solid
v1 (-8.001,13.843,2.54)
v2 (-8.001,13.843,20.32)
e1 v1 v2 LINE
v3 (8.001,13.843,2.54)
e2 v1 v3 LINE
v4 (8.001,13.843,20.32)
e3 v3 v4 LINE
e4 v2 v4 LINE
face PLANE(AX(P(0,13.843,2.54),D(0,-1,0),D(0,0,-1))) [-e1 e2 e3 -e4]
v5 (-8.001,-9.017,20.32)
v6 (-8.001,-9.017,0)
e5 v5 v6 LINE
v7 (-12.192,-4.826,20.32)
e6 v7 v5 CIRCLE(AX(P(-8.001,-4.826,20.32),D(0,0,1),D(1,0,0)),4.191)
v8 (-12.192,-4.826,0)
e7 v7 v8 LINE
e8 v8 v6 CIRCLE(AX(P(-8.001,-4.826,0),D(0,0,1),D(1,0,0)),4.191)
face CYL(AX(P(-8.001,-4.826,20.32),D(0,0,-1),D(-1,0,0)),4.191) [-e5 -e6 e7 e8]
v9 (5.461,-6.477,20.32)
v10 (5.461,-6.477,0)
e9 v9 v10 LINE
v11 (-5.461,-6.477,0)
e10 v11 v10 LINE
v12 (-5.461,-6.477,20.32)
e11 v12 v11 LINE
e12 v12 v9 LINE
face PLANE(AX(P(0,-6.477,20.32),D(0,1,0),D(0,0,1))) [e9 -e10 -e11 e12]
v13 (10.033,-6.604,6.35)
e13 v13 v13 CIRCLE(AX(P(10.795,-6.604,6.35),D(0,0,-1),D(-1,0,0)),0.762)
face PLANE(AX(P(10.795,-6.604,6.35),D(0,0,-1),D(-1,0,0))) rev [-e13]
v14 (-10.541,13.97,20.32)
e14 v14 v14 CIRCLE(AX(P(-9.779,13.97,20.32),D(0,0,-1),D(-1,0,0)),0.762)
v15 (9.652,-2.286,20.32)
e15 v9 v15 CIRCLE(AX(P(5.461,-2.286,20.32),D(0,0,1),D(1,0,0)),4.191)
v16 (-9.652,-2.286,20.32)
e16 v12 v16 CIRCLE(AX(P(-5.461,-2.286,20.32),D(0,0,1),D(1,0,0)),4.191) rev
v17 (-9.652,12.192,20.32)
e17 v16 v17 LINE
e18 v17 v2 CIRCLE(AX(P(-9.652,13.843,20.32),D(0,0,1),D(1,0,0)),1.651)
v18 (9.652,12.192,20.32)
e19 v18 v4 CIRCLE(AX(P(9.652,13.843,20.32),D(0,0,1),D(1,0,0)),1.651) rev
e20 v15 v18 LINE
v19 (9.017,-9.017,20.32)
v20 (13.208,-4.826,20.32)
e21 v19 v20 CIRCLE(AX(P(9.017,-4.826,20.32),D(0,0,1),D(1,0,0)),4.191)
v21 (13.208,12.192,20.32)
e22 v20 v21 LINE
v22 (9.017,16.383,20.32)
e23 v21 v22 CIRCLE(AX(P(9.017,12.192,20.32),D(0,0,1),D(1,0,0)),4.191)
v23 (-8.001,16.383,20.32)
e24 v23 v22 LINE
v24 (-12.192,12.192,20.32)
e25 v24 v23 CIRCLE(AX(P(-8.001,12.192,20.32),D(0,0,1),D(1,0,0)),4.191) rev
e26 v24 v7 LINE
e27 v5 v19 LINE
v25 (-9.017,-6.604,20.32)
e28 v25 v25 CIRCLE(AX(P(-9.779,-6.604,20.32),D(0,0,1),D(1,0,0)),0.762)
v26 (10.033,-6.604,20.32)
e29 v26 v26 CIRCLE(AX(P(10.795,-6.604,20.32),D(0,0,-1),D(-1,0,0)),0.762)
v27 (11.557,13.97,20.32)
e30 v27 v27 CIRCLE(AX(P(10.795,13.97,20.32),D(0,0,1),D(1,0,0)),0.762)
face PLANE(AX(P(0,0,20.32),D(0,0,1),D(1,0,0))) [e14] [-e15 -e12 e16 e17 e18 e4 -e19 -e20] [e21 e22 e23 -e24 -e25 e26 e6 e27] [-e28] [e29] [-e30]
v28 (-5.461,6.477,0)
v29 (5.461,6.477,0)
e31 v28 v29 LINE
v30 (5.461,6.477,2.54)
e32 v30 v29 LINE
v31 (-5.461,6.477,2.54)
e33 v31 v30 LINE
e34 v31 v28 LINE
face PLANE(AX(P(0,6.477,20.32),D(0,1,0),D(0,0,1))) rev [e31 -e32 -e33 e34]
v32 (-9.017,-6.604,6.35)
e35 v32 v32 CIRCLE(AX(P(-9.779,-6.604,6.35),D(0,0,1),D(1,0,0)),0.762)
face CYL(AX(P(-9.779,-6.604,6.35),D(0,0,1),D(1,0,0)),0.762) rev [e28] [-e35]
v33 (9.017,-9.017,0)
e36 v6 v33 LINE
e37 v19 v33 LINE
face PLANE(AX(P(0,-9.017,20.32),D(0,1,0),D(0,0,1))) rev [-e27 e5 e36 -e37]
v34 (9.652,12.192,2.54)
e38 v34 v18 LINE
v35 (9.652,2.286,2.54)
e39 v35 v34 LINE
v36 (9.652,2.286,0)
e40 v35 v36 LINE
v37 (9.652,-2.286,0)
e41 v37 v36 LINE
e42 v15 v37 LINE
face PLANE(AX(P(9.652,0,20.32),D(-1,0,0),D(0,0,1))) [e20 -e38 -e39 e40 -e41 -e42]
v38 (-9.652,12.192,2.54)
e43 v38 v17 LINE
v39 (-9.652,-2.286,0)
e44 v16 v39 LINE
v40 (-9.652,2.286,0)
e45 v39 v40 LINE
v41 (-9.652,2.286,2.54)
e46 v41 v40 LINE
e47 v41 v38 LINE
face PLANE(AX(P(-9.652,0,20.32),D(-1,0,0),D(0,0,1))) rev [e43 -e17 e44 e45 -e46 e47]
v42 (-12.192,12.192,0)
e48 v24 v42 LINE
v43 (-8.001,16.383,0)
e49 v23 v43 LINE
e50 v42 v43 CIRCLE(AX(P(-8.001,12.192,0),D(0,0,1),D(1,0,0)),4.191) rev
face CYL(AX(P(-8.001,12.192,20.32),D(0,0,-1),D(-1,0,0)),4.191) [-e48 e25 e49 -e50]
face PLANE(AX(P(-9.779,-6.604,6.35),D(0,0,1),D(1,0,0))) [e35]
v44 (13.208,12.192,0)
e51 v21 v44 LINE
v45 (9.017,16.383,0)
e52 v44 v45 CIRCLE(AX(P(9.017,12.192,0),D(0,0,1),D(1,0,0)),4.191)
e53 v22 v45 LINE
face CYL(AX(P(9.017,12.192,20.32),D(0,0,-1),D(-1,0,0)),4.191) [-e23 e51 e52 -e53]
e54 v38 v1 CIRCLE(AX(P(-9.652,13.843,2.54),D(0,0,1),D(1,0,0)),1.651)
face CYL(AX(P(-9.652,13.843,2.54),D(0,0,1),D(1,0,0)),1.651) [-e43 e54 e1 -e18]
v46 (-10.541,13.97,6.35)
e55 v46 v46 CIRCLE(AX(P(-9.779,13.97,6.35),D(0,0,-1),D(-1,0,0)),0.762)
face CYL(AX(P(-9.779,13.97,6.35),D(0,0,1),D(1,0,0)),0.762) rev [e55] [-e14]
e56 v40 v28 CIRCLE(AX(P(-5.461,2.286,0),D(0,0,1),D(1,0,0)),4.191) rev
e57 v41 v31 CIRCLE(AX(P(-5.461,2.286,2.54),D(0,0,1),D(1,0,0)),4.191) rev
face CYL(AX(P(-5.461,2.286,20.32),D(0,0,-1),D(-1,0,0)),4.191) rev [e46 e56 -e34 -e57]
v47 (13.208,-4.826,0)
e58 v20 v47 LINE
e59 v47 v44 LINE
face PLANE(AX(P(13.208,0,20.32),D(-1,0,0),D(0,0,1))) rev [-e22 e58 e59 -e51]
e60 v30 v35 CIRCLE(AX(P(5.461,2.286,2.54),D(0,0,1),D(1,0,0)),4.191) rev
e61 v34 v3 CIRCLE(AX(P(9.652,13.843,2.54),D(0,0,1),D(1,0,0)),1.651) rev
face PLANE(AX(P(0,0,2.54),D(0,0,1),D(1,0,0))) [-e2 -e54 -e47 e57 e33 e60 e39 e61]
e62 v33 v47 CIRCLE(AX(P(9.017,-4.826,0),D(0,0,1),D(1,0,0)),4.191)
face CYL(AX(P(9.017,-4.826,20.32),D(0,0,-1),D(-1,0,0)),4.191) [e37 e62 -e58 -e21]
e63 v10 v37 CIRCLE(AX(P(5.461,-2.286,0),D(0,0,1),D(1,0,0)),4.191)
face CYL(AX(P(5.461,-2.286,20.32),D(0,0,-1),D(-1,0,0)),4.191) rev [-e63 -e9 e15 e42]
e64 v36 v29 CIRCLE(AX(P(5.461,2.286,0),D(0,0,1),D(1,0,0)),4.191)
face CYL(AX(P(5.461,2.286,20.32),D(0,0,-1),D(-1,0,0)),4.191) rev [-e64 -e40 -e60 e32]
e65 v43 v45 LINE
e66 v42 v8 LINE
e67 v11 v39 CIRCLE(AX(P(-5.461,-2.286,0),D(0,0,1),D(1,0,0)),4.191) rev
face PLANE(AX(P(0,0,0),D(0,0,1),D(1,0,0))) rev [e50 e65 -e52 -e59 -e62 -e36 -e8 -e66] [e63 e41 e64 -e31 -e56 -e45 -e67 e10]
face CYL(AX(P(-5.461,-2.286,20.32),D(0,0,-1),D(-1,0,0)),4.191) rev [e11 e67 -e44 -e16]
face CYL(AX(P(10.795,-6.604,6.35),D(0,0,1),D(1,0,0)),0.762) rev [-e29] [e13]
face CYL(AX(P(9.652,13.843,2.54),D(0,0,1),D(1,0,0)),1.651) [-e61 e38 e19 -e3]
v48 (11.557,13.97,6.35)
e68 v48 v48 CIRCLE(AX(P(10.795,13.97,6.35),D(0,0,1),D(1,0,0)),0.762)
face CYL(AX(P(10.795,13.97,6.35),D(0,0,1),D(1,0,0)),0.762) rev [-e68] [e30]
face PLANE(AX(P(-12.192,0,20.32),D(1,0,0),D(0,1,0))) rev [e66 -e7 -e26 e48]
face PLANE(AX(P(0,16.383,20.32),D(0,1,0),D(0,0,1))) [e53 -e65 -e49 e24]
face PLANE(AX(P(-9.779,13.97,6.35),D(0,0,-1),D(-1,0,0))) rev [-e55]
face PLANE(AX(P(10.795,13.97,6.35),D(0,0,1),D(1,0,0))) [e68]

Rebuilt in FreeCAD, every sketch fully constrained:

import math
import FreeCAD as App
import Part
import Sketcher
from FreeCAD import Vector
Q = App.Units.Quantity

doc = App.newDocument("Part")
body = doc.addObject("PartDesign::Body", "Body")

# Sketch on XY plane
sketch1 = doc.addObject("Sketcher::SketchObject", "Sketch")
body.addObject(sketch1)
sketch1.AttachmentSupport = (doc.XY_Plane, [""])
sketch1.MapMode = "FlatFace"
sketch1.addGeometry([
    Part.LineSegment(Vector(9.017, 16.383, 0), Vector(-8.001, 16.383, 0)),  # 0
    Part.ArcOfCircle(Part.Circle(Vector(-8.001, 12.192, 0), Vector(0, 0, 1), 4.191), math.radians(90), math.radians(180)),  # 1
    Part.LineSegment(Vector(-12.192, 12.192, 0), Vector(-12.192, -4.826, 0)),  # 2
    Part.ArcOfCircle(Part.Circle(Vector(-8.001, -4.826, 0), Vector(0, 0, 1), 4.191), math.radians(180), math.radians(270)),  # 3
    Part.LineSegment(Vector(-8.001, -9.017, 0), Vector(9.017, -9.017, 0)),  # 4
    Part.ArcOfCircle(Part.Circle(Vector(9.017, -4.826, 0), Vector(0, 0, 1), 4.191), math.radians(-90), math.radians(0)),  # 5
    Part.LineSegment(Vector(13.208, -4.826, 0), Vector(13.208, 12.192, 0)),  # 6
    Part.ArcOfCircle(Part.Circle(Vector(9.017, 12.192, 0), Vector(0, 0, 1), 4.191), math.radians(0), math.radians(90)),  # 7
    Part.ArcOfCircle(Part.Circle(Vector(-5.461, -2.286, 0), Vector(0, 0, 1), 4.191), math.radians(180), math.radians(270)),  # 8
    Part.LineSegment(Vector(-9.652, -2.286, 0), Vector(-9.652, 2.286, 0)),  # 9
    Part.ArcOfCircle(Part.Circle(Vector(-5.461, 2.286, 0), Vector(0, 0, 1), 4.191), math.radians(90), math.radians(180)),  # 10
    Part.LineSegment(Vector(-5.461, 6.477, 0), Vector(5.461, 6.477, 0)),  # 11
    Part.ArcOfCircle(Part.Circle(Vector(5.461, 2.286, 0), Vector(0, 0, 1), 4.191), math.radians(0), math.radians(90)),  # 12
    Part.LineSegment(Vector(9.652, 2.286, 0), Vector(9.652, -2.286, 0)),  # 13
    Part.ArcOfCircle(Part.Circle(Vector(5.461, -2.286, 0), Vector(0, 0, 1), 4.191), math.radians(-90), math.radians(0)),  # 14
    Part.LineSegment(Vector(5.461, -6.477, 0), Vector(-5.461, -6.477, 0)),  # 15
], False)
sketch1.addConstraint([
    Sketcher.Constraint("Tangent", 0, 2, 1, 1),
    Sketcher.Constraint("Tangent", 1, 2, 2, 1),
    Sketcher.Constraint("Tangent", 2, 2, 3, 1),
    Sketcher.Constraint("Tangent", 3, 2, 4, 1),
    Sketcher.Constraint("Tangent", 4, 2, 5, 1),
    Sketcher.Constraint("Tangent", 5, 2, 6, 1),
    Sketcher.Constraint("Tangent", 6, 2, 7, 1),
    Sketcher.Constraint("Tangent", 7, 2, 0, 1),
    Sketcher.Constraint("Tangent", 8, 1, 9, 1),
    Sketcher.Constraint("Tangent", 9, 2, 10, 2),
    Sketcher.Constraint("Tangent", 10, 1, 11, 1),
    Sketcher.Constraint("Tangent", 11, 2, 12, 2),
    Sketcher.Constraint("Tangent", 12, 1, 13, 1),
    Sketcher.Constraint("Tangent", 13, 2, 14, 2),
    Sketcher.Constraint("Tangent", 14, 1, 15, 1),
    Sketcher.Constraint("Tangent", 15, 2, 8, 2),
    Sketcher.Constraint("Horizontal", 0),
    Sketcher.Constraint("Vertical", 2),
    Sketcher.Constraint("Horizontal", 4),
    Sketcher.Constraint("Vertical", 6),
    Sketcher.Constraint("Vertical", 9),
    Sketcher.Constraint("Horizontal", 11),
    Sketcher.Constraint("Vertical", 13),
    Sketcher.Constraint("Horizontal", 15),
    Sketcher.Constraint("Equal", 1, 3),
    Sketcher.Constraint("Equal", 3, 5),
    Sketcher.Constraint("Equal", 5, 7),
    Sketcher.Constraint("Equal", 7, 8),
    Sketcher.Constraint("Equal", 8, 10),
    Sketcher.Constraint("Equal", 10, 12),
    Sketcher.Constraint("Equal", 12, 14),
    Sketcher.Constraint("Symmetric", 8, 3, 12, 3, -1, 1),
    Sketcher.Constraint("Equal", 4, 2),
    Sketcher.Constraint("Radius", 1, Q("0.165 in")),
    Sketcher.Constraint("DistanceX", 0, 2, 0, 1, Q("0.67 in")),
    Sketcher.Constraint("DistanceX", 11, 1, 11, 2, Q("0.43 in")),
    Sketcher.Constraint("DistanceY", 9, 1, 9, 2, Q("0.18 in")),
    Sketcher.Constraint("DistanceX", 3, 3, 8, 3, Q("0.1 in")),
    Sketcher.Constraint("DistanceY", 3, 3, 8, 3, Q("0.1 in")),
])
pad1 = doc.addObject("PartDesign::Pad", "Pad")
body.addObject(pad1)
pad1.Profile = sketch1
pad1.Length = Q("0.8 in")

# Sketch on XY plane
sketch2 = doc.addObject("Sketcher::SketchObject", "Sketch001")
body.addObject(sketch2)
sketch2.AttachmentSupport = (doc.XY_Plane, [""])
sketch2.MapMode = "FlatFace"
sketch2.AttachmentOffset = App.Placement(Vector(0, 0, 0.1 * 25.4), App.Rotation())
sketch2.addGeometry([
    Part.LineSegment(Vector(-9.652, 12.192, 0), Vector(-9.652, 2.286, 0)),  # 0
    Part.ArcOfCircle(Part.Circle(Vector(-5.461, 2.286, 0), Vector(0, 0, 1), 4.191), math.radians(90), math.radians(180)),  # 1
    Part.LineSegment(Vector(-5.461, 6.477, 0), Vector(5.461, 6.477, 0)),  # 2
    Part.ArcOfCircle(Part.Circle(Vector(5.461, 2.286, 0), Vector(0, 0, 1), 4.191), math.radians(0), math.radians(90)),  # 3
    Part.LineSegment(Vector(9.652, 2.286, 0), Vector(9.652, 12.192, 0)),  # 4
    Part.ArcOfCircle(Part.Circle(Vector(9.652, 13.843, 0), Vector(0, 0, 1), 1.651), math.radians(180), math.radians(270)),  # 5
    Part.LineSegment(Vector(8.001, 13.843, 0), Vector(-8.001, 13.843, 0)),  # 6
    Part.ArcOfCircle(Part.Circle(Vector(-9.652, 13.843, 0), Vector(0, 0, 1), 1.651), math.radians(-90), math.radians(0)),  # 7
], False)
sketch2.addConstraint([
    Sketcher.Constraint("Tangent", 0, 2, 1, 2),
    Sketcher.Constraint("Tangent", 1, 1, 2, 1),
    Sketcher.Constraint("Tangent", 2, 2, 3, 2),
    Sketcher.Constraint("Tangent", 3, 1, 4, 1),
    Sketcher.Constraint("Coincident", 4, 2, 5, 2),
    Sketcher.Constraint("Coincident", 5, 1, 6, 1),
    Sketcher.Constraint("Coincident", 6, 2, 7, 2),
    Sketcher.Constraint("Coincident", 7, 1, 0, 1),
    Sketcher.Constraint("Vertical", 0),
    Sketcher.Constraint("Horizontal", 2),
    Sketcher.Constraint("Vertical", 4),
    Sketcher.Constraint("Horizontal", 6),
    Sketcher.Constraint("Equal", 1, 3),
    Sketcher.Constraint("Equal", 5, 7),
    Sketcher.Constraint("Symmetric", 5, 3, 7, 3, -2),
    Sketcher.Constraint("Horizontal", 7, 3, 5, 1),
    Sketcher.Constraint("Vertical", 7, 3, 0, 2),
    Sketcher.Constraint("Vertical", 5, 3, 3, 1),
    Sketcher.Constraint("Radius", 1, Q("0.165 in")),
    Sketcher.Constraint("Radius", 5, Q("0.065 in")),
    Sketcher.Constraint("DistanceX", 2, 1, 2, 2, Q("0.43 in")),
    Sketcher.Constraint("DistanceY", 0, 2, 0, 1, Q("0.39 in")),
    Sketcher.Constraint("DistanceY", -1, 1, 1, 3, Q("0.09 in")),
])
pocket1 = doc.addObject("PartDesign::Pocket", "Pocket")
body.addObject(pocket1)
pocket1.Profile = sketch2
pocket1.Length = Q("0.7 in")
pocket1.Reversed = True

# Sketch on XY plane
sketch3 = doc.addObject("Sketcher::SketchObject", "Sketch002")
body.addObject(sketch3)
sketch3.AttachmentSupport = (doc.XY_Plane, [""])
sketch3.MapMode = "FlatFace"
sketch3.AttachmentOffset = App.Placement(Vector(0, 0, 0.8 * 25.4), App.Rotation())
sketch3.addGeometry(Part.Circle(Vector(-9.779, 13.97, 0), Vector(0, 0, 1), 0.762), False)
sketch3.addConstraint([
    Sketcher.Constraint("Diameter", 0, Q("0.06 in")),
    Sketcher.Constraint("DistanceY", -1, 1, 0, 3, Q("0.55 in")),
    Sketcher.Constraint("DistanceX", 0, 3, -1, 1, Q("0.385 in")),
])
pocket2 = doc.addObject("PartDesign::Pocket", "Pocket001")
body.addObject(pocket2)
pocket2.Profile = sketch3
pocket2.Length = Q("0.55 in")

# Sketch on XY plane
sketch4 = doc.addObject("Sketcher::SketchObject", "Sketch003")
body.addObject(sketch4)
sketch4.AttachmentSupport = (doc.XY_Plane, [""])
sketch4.MapMode = "FlatFace"
sketch4.AttachmentOffset = App.Placement(Vector(0, 0, 0.8 * 25.4), App.Rotation())
sketch4.addGeometry(Part.Circle(Vector(10.795, 13.97, 0), Vector(0, 0, 1), 0.762), False)
sketch4.addConstraint([
    Sketcher.Constraint("Diameter", 0, Q("0.06 in")),
    Sketcher.Constraint("DistanceY", -1, 1, 0, 3, Q("0.55 in")),
    Sketcher.Constraint("DistanceX", -1, 1, 0, 3, Q("0.425 in")),
])
pocket3 = doc.addObject("PartDesign::Pocket", "Pocket002")
body.addObject(pocket3)
pocket3.Profile = sketch4
pocket3.Length = Q("0.55 in")

# Sketch on XY plane
sketch5 = doc.addObject("Sketcher::SketchObject", "Sketch004")
body.addObject(sketch5)
sketch5.AttachmentSupport = (doc.XY_Plane, [""])
sketch5.MapMode = "FlatFace"
sketch5.AttachmentOffset = App.Placement(Vector(0, 0, 0.8 * 25.4), App.Rotation())
sketch5.addGeometry(Part.Circle(Vector(10.795, -6.604, 0), Vector(0, 0, 1), 0.762), False)
sketch5.addConstraint([
    Sketcher.Constraint("Diameter", 0, Q("0.06 in")),
    Sketcher.Constraint("DistanceY", 0, 3, -1, 1, Q("0.26 in")),
    Sketcher.Constraint("DistanceX", -1, 1, 0, 3, Q("0.425 in")),
])
pocket4 = doc.addObject("PartDesign::Pocket", "Pocket003")
body.addObject(pocket4)
pocket4.Profile = sketch5
pocket4.Length = Q("0.55 in")

# Sketch on XY plane
sketch6 = doc.addObject("Sketcher::SketchObject", "Sketch005")
body.addObject(sketch6)
sketch6.AttachmentSupport = (doc.XY_Plane, [""])
sketch6.MapMode = "FlatFace"
sketch6.AttachmentOffset = App.Placement(Vector(0, 0, 0.8 * 25.4), App.Rotation())
sketch6.addGeometry(Part.Circle(Vector(-9.779, -6.604, 0), Vector(0, 0, 1), 0.762), False)
sketch6.addConstraint([
    Sketcher.Constraint("Diameter", 0, Q("0.06 in")),
    Sketcher.Constraint("DistanceY", 0, 3, -1, 1, Q("0.26 in")),
    Sketcher.Constraint("DistanceX", 0, 3, -1, 1, Q("0.385 in")),
])
pocket5 = doc.addObject("PartDesign::Pocket", "Pocket004")
body.addObject(pocket5)
pocket5.Profile = sketch6
pocket5.Length = Q("0.55 in")

doc.recompute()
